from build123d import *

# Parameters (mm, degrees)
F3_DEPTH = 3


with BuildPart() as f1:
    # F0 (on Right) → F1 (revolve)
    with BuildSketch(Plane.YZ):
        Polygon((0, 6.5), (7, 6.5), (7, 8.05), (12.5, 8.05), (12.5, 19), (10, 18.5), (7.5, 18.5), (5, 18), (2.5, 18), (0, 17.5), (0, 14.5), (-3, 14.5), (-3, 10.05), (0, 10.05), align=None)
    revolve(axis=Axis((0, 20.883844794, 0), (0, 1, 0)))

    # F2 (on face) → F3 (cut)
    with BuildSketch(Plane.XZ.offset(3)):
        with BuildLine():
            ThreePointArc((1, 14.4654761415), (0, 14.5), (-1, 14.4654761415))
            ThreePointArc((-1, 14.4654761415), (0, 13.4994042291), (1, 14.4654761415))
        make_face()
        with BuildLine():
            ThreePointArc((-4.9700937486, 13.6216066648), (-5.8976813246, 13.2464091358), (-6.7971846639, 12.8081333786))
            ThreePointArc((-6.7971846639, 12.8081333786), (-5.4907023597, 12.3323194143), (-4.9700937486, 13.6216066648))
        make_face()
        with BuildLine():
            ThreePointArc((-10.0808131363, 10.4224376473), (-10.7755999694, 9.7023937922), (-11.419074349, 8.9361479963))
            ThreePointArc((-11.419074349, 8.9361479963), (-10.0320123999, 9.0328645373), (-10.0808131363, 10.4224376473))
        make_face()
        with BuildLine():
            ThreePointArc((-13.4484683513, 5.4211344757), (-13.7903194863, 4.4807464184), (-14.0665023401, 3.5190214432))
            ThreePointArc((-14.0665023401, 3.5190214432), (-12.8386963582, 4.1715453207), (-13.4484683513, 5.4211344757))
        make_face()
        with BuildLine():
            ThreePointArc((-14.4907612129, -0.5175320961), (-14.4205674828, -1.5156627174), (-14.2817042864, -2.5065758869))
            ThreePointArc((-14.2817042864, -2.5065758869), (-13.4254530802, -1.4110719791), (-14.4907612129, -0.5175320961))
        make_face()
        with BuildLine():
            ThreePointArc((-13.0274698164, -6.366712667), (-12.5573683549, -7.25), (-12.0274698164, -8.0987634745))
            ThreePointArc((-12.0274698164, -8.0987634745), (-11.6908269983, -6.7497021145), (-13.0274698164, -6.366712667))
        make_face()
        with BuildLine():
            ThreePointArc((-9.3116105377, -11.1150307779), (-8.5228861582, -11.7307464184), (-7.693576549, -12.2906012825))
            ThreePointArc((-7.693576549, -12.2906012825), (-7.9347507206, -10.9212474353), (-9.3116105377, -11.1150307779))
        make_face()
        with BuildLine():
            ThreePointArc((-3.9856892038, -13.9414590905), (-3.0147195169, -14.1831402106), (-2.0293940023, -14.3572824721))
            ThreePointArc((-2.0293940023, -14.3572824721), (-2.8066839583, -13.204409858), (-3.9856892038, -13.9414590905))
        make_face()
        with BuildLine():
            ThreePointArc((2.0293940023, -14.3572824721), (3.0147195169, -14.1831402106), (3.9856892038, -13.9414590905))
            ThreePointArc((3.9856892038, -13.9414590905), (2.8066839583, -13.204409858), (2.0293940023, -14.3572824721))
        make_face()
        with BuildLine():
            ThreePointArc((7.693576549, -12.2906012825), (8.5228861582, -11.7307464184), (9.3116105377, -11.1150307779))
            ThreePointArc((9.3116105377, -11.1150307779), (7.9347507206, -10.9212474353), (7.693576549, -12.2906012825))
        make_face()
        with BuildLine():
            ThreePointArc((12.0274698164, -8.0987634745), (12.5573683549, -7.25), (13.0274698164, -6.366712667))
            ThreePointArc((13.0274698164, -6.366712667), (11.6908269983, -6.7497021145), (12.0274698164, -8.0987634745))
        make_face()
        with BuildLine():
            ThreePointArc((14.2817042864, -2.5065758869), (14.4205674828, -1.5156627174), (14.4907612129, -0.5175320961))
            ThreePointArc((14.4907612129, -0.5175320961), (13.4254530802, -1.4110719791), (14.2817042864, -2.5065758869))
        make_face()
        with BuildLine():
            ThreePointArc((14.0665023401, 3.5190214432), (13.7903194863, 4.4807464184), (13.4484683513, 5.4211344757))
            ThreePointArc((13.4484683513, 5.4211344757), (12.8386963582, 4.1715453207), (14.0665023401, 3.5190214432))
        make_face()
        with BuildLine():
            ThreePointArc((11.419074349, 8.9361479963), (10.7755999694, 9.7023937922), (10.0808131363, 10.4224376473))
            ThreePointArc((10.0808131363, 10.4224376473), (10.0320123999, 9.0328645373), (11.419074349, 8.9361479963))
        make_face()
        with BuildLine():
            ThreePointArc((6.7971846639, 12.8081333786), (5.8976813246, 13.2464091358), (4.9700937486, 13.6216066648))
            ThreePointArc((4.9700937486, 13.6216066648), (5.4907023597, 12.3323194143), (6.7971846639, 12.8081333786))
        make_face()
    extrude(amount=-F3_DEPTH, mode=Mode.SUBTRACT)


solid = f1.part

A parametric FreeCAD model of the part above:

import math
import FreeCAD as App
import Part
import Sketcher

V = App.Vector
Q = App.Units.Quantity

doc = App.newDocument("Part")
body = doc.addObject("PartDesign::Body", "Body")

sketch1 = body.newObject("Sketcher::SketchObject", "Sketch")
sketch1.AttachmentSupport = (doc.getObject("YZ_Plane"), [""])
sketch1.MapMode = "FlatFace"
sketch1.addGeometry(Part.LineSegment(V(0, 6.5, 0), V(7, 6.5, 0)), False)
sketch1.addGeometry(Part.LineSegment(V(7, 6.5, 0), V(7, 8.1, 0)), False)
sketch1.addGeometry(Part.LineSegment(V(7, 8.1, 0), V(12.5, 8.1, 0)), False)
sketch1.addGeometry(Part.LineSegment(V(12.5, 8.1, 0), V(12.5, 19, 0)), False)
sketch1.addGeometry(Part.LineSegment(V(12.5, 19, 0), V(10, 18.5, 0)), False)
sketch1.addGeometry(Part.LineSegment(V(10, 18.5, 0), V(7.5, 18.5, 0)), False)
sketch1.addGeometry(Part.LineSegment(V(7.5, 18.5, 0), V(5, 18, 0)), False)
sketch1.addGeometry(Part.LineSegment(V(5, 18, 0), V(2.5, 18, 0)), False)
sketch1.addGeometry(Part.LineSegment(V(2.5, 18, 0), V(0, 17.5, 0)), False)
sketch1.addGeometry(Part.LineSegment(V(0, 17.5, 0), V(0, 14.5, 0)), False)
sketch1.addGeometry(Part.LineSegment(V(0, 14.5, 0), V(-3, 14.5, 0)), False)
sketch1.addGeometry(Part.LineSegment(V(-3, 14.5, 0), V(-3, 10.1, 0)), False)
sketch1.addGeometry(Part.LineSegment(V(-3, 10.1, 0), V(0, 10.1, 0)), False)
sketch1.addGeometry(Part.LineSegment(V(0, 10.1, 0), V(0, 6.5, 0)), False)
sketch1.addConstraint(Sketcher.Constraint("Coincident", 0, 2, 1, 1))
sketch1.addConstraint(Sketcher.Constraint("Coincident", 1, 2, 2, 1))
sketch1.addConstraint(Sketcher.Constraint("Coincident", 2, 2, 3, 1))
sketch1.addConstraint(Sketcher.Constraint("Coincident", 3, 2, 4, 1))
sketch1.addConstraint(Sketcher.Constraint("Coincident", 4, 2, 5, 1))
sketch1.addConstraint(Sketcher.Constraint("Coincident", 5, 2, 6, 1))
sketch1.addConstraint(Sketcher.Constraint("Coincident", 6, 2, 7, 1))
sketch1.addConstraint(Sketcher.Constraint("Coincident", 7, 2, 8, 1))
sketch1.addConstraint(Sketcher.Constraint("Coincident", 8, 2, 9, 1))
sketch1.addConstraint(Sketcher.Constraint("Coincident", 9, 2, 10, 1))
sketch1.addConstraint(Sketcher.Constraint("Coincident", 10, 2, 11, 1))
sketch1.addConstraint(Sketcher.Constraint("Coincident", 11, 2, 12, 1))
sketch1.addConstraint(Sketcher.Constraint("Coincident", 12, 2, 13, 1))
sketch1.addConstraint(Sketcher.Constraint("Coincident", 13, 2, 0, 1))
sketch1.addConstraint(Sketcher.Constraint("Horizontal", 0))
sketch1.addConstraint(Sketcher.Constraint("Vertical", 1))
sketch1.addConstraint(Sketcher.Constraint("Horizontal", 2))
sketch1.addConstraint(Sketcher.Constraint("Vertical", 3))
sketch1.addConstraint(Sketcher.Constraint("Horizontal", 5))
sketch1.addConstraint(Sketcher.Constraint("Horizontal", 7))
sketch1.addConstraint(Sketcher.Constraint("Vertical", 9))
sketch1.addConstraint(Sketcher.Constraint("Horizontal", 10))
sketch1.addConstraint(Sketcher.Constraint("Vertical", 11))
sketch1.addConstraint(Sketcher.Constraint("Horizontal", 12))
sketch1.addConstraint(Sketcher.Constraint("Vertical", 13))
sketch1.addConstraint(Sketcher.Constraint("PointOnObject", 8, 2, -2))
sketch1.addConstraint(Sketcher.Constraint("PointOnObject", 12, 2, -2))
sketch1.addConstraint(Sketcher.Constraint("Parallel", 4, 6))
sketch1.addConstraint(Sketcher.Constraint("Parallel", 6, 8))
sketch1.addConstraint(Sketcher.Constraint("Equal", 5, 7))
sketch1.addConstraint(Sketcher.Constraint("Equal", 12, 9))
sketch1.addConstraint(Sketcher.Constraint("Equal", 4, 6))
sketch1.addConstraint(Sketcher.Constraint("Equal", 6, 8))
sketch1.addConstraint(Sketcher.Constraint("DistanceX", 0, 1, 0, 2, Q("7 mm")))
sketch1.addConstraint(Sketcher.Constraint("DistanceX", 10, 2, 10, 1, Q("3 mm")))
sketch1.addConstraint(Sketcher.Constraint("DistanceX", 2, 1, 2, 2, Q("5.5 mm")))
sketch1.addConstraint(Sketcher.Constraint("DistanceX", 5, 2, 5, 1, Q("2.5 mm")))
sketch1.addConstraint(Sketcher.Constraint("DistanceY", -1, 1, 3, 2, Q("19 mm")))
sketch1.addConstraint(Sketcher.Constraint("DistanceY", -1, 1, 6, 2, Q("18 mm")))
sketch1.addConstraint(Sketcher.Constraint("DistanceY", 0, 2, 4, 2, Q("12 mm")))
sketch1.addConstraint(Sketcher.Constraint("DistanceY", 1, 2, 11, 2, Q("2 mm")))
sketch1.addConstraint(Sketcher.Constraint("DistanceY", 1, 1, 1, 2, Q("1.55 mm")))
revolution = body.newObject("PartDesign::Revolution", "Revolution")
revolution.Profile = sketch1
revolution.ReferenceAxis = (sketch1, ["H_Axis"])
revolution.Angle = 360

sketch2 = body.newObject("Sketcher::SketchObject", "Sketch001")
sketch2.AttachmentSupport = (doc.getObject("XZ_Plane"), [""])
sketch2.MapMode = "FlatFace"
sketch2.AttachmentOffset = App.Placement(V(0, 0, 3), App.Rotation())
sketch2.addGeometry(Part.ArcOfCircle(Part.Circle(V(0, 0, 0), V(0, 0, 1), 14.5), math.radians(86.045428), math.radians(93.954572)), False)
sketch2.addGeometry(Part.ArcOfCircle(Part.Circle(V(0, 14.5, 0), V(0, 0, 1), 1.000596), math.radians(-178.022714), math.radians(-1.977286)), False)
sketch2.addGeometry(Part.ArcOfCircle(Part.Circle(V(0, 0, 0), V(0, 0, 1), 14.5), math.radians(110.045428), math.radians(117.954572)), False)
sketch2.addGeometry(Part.ArcOfCircle(Part.Circle(V(-5.897681, 13.246409, 0), V(0, 0, 1), 1.000596), math.radians(-154.022714), math.radians(22.022714)), False)
sketch2.addGeometry(Part.ArcOfCircle(Part.Circle(V(0, 0, 0), V(0, 0, 1), 14.5), math.radians(134.045428), math.radians(141.954572)), False)
sketch2.addGeometry(Part.ArcOfCircle(Part.Circle(V(-10.7756, 9.702394, 0), V(0, 0, 1), 1.000596), math.radians(-130.022714), math.radians(46.022714)), False)
sketch2.addGeometry(Part.ArcOfCircle(Part.Circle(V(0, 0, 0), V(0, 0, 1), 14.5), math.radians(158.045428), math.radians(165.954572)), False)
sketch2.addGeometry(Part.ArcOfCircle(Part.Circle(V(-13.790319, 4.480746, 0), V(0, 0, 1), 1.000596), math.radians(-106.022714), math.radians(70.022714)), False)
sketch2.addGeometry(Part.ArcOfCircle(Part.Circle(V(0, 0, 0), V(0, 0, 1), 14.5), math.radians(-177.954572), math.radians(-170.045428)), False)
sketch2.addGeometry(Part.ArcOfCircle(Part.Circle(V(-14.420567, -1.515663, 0), V(0, 0, 1), 1.000596), math.radians(-82.022714), math.radians(94.022714)), False)
sketch2.addGeometry(Part.ArcOfCircle(Part.Circle(V(0, 0, 0), V(0, 0, 1), 14.5), math.radians(-153.954572), math.radians(-146.045428)), False)
sketch2.addGeometry(Part.ArcOfCircle(Part.Circle(V(-12.557368, -7.25, 0), V(0, 0, 1), 1.000596), math.radians(-58.022714), math.radians(118.022714)), False)
sketch2.addGeometry(Part.ArcOfCircle(Part.Circle(V(0, 0, 0), V(0, 0, 1), 14.5), math.radians(-129.954572), math.radians(-122.045428)), False)
sketch2.addGeometry(Part.ArcOfCircle(Part.Circle(V(-8.522886, -11.730746, 0), V(0, 0, 1), 1.000596), math.radians(-34.022714), math.radians(142.022714)), False)
sketch2.addGeometry(Part.ArcOfCircle(Part.Circle(V(0, 0, 0), V(0, 0, 1), 14.5), math.radians(-105.954572), math.radians(-98.045428)), False)
sketch2.addGeometry(Part.ArcOfCircle(Part.Circle(V(-3.01472, -14.18314, 0), V(0, 0, 1), 1.000596), math.radians(-10.022714), math.radians(166.022714)), False)
sketch2.addGeometry(Part.ArcOfCircle(Part.Circle(V(0, 0, 0), V(0, 0, 1), 14.5), math.radians(-81.954572), math.radians(-74.045428)), False)
sketch2.addGeometry(Part.ArcOfCircle(Part.Circle(V(3.01472, -14.18314, 0), V(0, 0, 1), 1.000596), math.radians(13.977286), math.radians(190.022714)), False)
sketch2.addGeometry(Part.ArcOfCircle(Part.Circle(V(0, 0, 0), V(0, 0, 1), 14.5), math.radians(-57.954572), math.radians(-50.045428)), False)
sketch2.addGeometry(Part.ArcOfCircle(Part.Circle(V(8.522886, -11.730746, 0), V(0, 0, 1), 1.000596), math.radians(37.977286), math.radians(214.022714)), False)
sketch2.addGeometry(Part.ArcOfCircle(Part.Circle(V(0, 0, 0), V(0, 0, 1), 14.5), math.radians(-33.954572), math.radians(-26.045428)), False)
sketch2.addGeometry(Part.ArcOfCircle(Part.Circle(V(12.557368, -7.25, 0), V(0, 0, 1), 1.000596), math.radians(61.977286), math.radians(238.022714)), False)
sketch2.addGeometry(Part.ArcOfCircle(Part.Circle(V(0, 0, 0), V(0, 0, 1), 14.5), math.radians(-9.954572), math.radians(-2.045428)), False)
sketch2.addGeometry(Part.ArcOfCircle(Part.Circle(V(14.420567, -1.515663, 0), V(0, 0, 1), 1.000596), math.radians(85.977286), math.radians(262.022714)), False)
sketch2.addGeometry(Part.ArcOfCircle(Part.Circle(V(0, 0, 0), V(0, 0, 1), 14.5), math.radians(14.045428), math.radians(21.954572)), False)
sketch2.addGeometry(Part.ArcOfCircle(Part.Circle(V(13.790319, 4.480746, 0), V(0, 0, 1), 1.000596), math.radians(109.977286), math.radians(286.022714)), False)
sketch2.addGeometry(Part.ArcOfCircle(Part.Circle(V(0, 0, 0), V(0, 0, 1), 14.5), math.radians(38.045428), math.radians(45.954572)), False)
sketch2.addGeometry(Part.ArcOfCircle(Part.Circle(V(10.7756, 9.702394, 0), V(0, 0, 1), 1.000596), math.radians(133.977286), math.radians(310.022714)), False)
sketch2.addGeometry(Part.ArcOfCircle(Part.Circle(V(0, 0, 0), V(0, 0, 1), 14.5), math.radians(62.045428), math.radians(69.954572)), False)
sketch2.addGeometry(Part.ArcOfCircle(Part.Circle(V(5.897681, 13.246409, 0), V(0, 0, 1), 1.000596), math.radians(157.977286), math.radians(334.022714)), False)
sketch2.addConstraint(Sketcher.Constraint("Coincident", 0, 1, 1, 2))
sketch2.addConstraint(Sketcher.Constraint("Coincident", 1, 1, 0, 2))
sketch2.addConstraint(Sketcher.Constraint("Coincident", 2, 1, 3, 2))
sketch2.addConstraint(Sketcher.Constraint("Coincident", 3, 1, 2, 2))
sketch2.addConstraint(Sketcher.Constraint("Coincident", 4, 1, 5, 2))
sketch2.addConstraint(Sketcher.Constraint("Coincident", 5, 1, 4, 2))
sketch2.addConstraint(Sketcher.Constraint("Coincident", 6, 1, 7, 2))
sketch2.addConstraint(Sketcher.Constraint("Coincident", 7, 1, 6, 2))
sketch2.addConstraint(Sketcher.Constraint("Coincident", 8, 1, 9, 2))
sketch2.addConstraint(Sketcher.Constraint("Coincident", 9, 1, 8, 2))
sketch2.addConstraint(Sketcher.Constraint("Coincident", 10, 1, 11, 2))
sketch2.addConstraint(Sketcher.Constraint("Coincident", 11, 1, 10, 2))
sketch2.addConstraint(Sketcher.Constraint("Coincident", 12, 1, 13, 2))
sketch2.addConstraint(Sketcher.Constraint("Coincident", 13, 1, 12, 2))
sketch2.addConstraint(Sketcher.Constraint("Coincident", 14, 1, 15, 2))
sketch2.addConstraint(Sketcher.Constraint("Coincident", 15, 1, 14, 2))
sketch2.addConstraint(Sketcher.Constraint("Coincident", 16, 1, 17, 2))
sketch2.addConstraint(Sketcher.Constraint("Coincident", 17, 1, 16, 2))
sketch2.addConstraint(Sketcher.Constraint("Coincident", 18, 1, 19, 2))
sketch2.addConstraint(Sketcher.Constraint("Coincident", 19, 1, 18, 2))
sketch2.addConstraint(Sketcher.Constraint("Coincident", 20, 1, 21, 2))
sketch2.addConstraint(Sketcher.Constraint("Coincident", 21, 1, 20, 2))
sketch2.addConstraint(Sketcher.Constraint("Coincident", 22, 1, 23, 2))
sketch2.addConstraint(Sketcher.Constraint("Coincident", 23, 1, 22, 2))
sketch2.addConstraint(Sketcher.Constraint("Coincident", 24, 1, 25, 2))
sketch2.addConstraint(Sketcher.Constraint("Coincident", 25, 1, 24, 2))
sketch2.addConstraint(Sketcher.Constraint("Coincident", 26, 1, 27, 2))
sketch2.addConstraint(Sketcher.Constraint("Coincident", 27, 1, 26, 2))
sketch2.addConstraint(Sketcher.Constraint("Coincident", 28, 1, 29, 2))
sketch2.addConstraint(Sketcher.Constraint("Coincident", 29, 1, 28, 2))
sketch2.addConstraint(Sketcher.Constraint("Coincident", 0, 3, -1, 1))
sketch2.addConstraint(Sketcher.Constraint("Coincident", 2, 3, -1, 1))
sketch2.addConstraint(Sketcher.Constraint("Coincident", 4, 3, -1, 1))
sketch2.addConstraint(Sketcher.Constraint("Coincident", 6, 3, -1, 1))
sketch2.addConstraint(Sketcher.Constraint("Coincident", 8, 3, -1, 1))
sketch2.addConstraint(Sketcher.Constraint("Coincident", 10, 3, -1, 1))
sketch2.addConstraint(Sketcher.Constraint("Coincident", 12, 3, -1, 1))
sketch2.addConstraint(Sketcher.Constraint("Coincident", 14, 3, -1, 1))
sketch2.addConstraint(Sketcher.Constraint("Coincident", 16, 3, -1, 1))
sketch2.addConstraint(Sketcher.Constraint("Coincident", 18, 3, -1, 1))
sketch2.addConstraint(Sketcher.Constraint("Coincident", 20, 3, -1, 1))
sketch2.addConstraint(Sketcher.Constraint("Coincident", 22, 3, -1, 1))
sketch2.addConstraint(Sketcher.Constraint("Coincident", 24, 3, -1, 1))
sketch2.addConstraint(Sketcher.Constraint("Coincident", 26, 3, -1, 1))
sketch2.addConstraint(Sketcher.Constraint("Coincident", 28, 3, -1, 1))
sketch2.addConstraint(Sketcher.Constraint("Equal", 0, 2))
sketch2.addConstraint(Sketcher.Constraint("Equal", 1, 3))
sketch2.addConstraint(Sketcher.Constraint("Equal", 2, 4))
sketch2.addConstraint(Sketcher.Constraint("Equal", 3, 5))
sketch2.addConstraint(Sketcher.Constraint("Equal", 4, 6))
sketch2.addConstraint(Sketcher.Constraint("Equal", 5, 7))
sketch2.addConstraint(Sketcher.Constraint("Equal", 6, 8))
sketch2.addConstraint(Sketcher.Constraint("Equal", 7, 9))
sketch2.addConstraint(Sketcher.Constraint("Equal", 8, 10))
sketch2.addConstraint(Sketcher.Constraint("Equal", 9, 11))
sketch2.addConstraint(Sketcher.Constraint("Equal", 10, 12))
sketch2.addConstraint(Sketcher.Constraint("Equal", 11, 13))
sketch2.addConstraint(Sketcher.Constraint("Equal", 12, 14))
sketch2.addConstraint(Sketcher.Constraint("Equal", 13, 15))
sketch2.addConstraint(Sketcher.Constraint("Equal", 14, 16))
sketch2.addConstraint(Sketcher.Constraint("Equal", 15, 17))
sketch2.addConstraint(Sketcher.Constraint("Equal", 16, 18))
sketch2.addConstraint(Sketcher.Constraint("Equal", 17, 19))
sketch2.addConstraint(Sketcher.Constraint("Equal", 18, 20))
sketch2.addConstraint(Sketcher.Constraint("Equal", 19, 21))
sketch2.addConstraint(Sketcher.Constraint("Equal", 20, 22))
sketch2.addConstraint(Sketcher.Constraint("Equal", 21, 23))
sketch2.addConstraint(Sketcher.Constraint("Equal", 22, 24))
sketch2.addConstraint(Sketcher.Constraint("Equal", 23, 25))
sketch2.addConstraint(Sketcher.Constraint("Equal", 24, 26))
sketch2.addConstraint(Sketcher.Constraint("Equal", 25, 27))
sketch2.addConstraint(Sketcher.Constraint("Equal", 26, 28))
sketch2.addConstraint(Sketcher.Constraint("Equal", 27, 29))
sketch2.addConstraint(Sketcher.Constraint("Symmetric", 15, 3, 17, 3, -2))
sketch2.addConstraint(Sketcher.Constraint("Symmetric", 13, 3, 19, 3, -2))
sketch2.addConstraint(Sketcher.Constraint("Symmetric", 11, 3, 21, 3, -2))
sketch2.addConstraint(Sketcher.Constraint("Symmetric", 9, 3, 23, 3, -2))
sketch2.addConstraint(Sketcher.Constraint("Symmetric", 7, 3, 25, 3, -2))
sketch2.addConstraint(Sketcher.Constraint("Symmetric", 5, 3, 27, 3, -2))
sketch2.addConstraint(Sketcher.Constraint("Symmetric", 3, 3, 29, 3, -2))
sketch2.addConstraint(Sketcher.Constraint("PointOnObject", 1, 3, -2))
sketch2.addConstraint(Sketcher.Constraint("Radius", 0, Q("14.5 mm")))
sketch2.addConstraint(Sketcher.Constraint("DistanceX", -1, 1, 0, 1, Q("1 mm")))
sketch2.addConstraint(Sketcher.Constraint("DistanceX", 10, 1, 11, 1, Q("1 mm")))
sketch2.addConstraint(Sketcher.Constraint("DistanceY", -1, 1, 1, 3, Q("14.5 mm")))
sketch2.addConstraint(Sketcher.Constraint("DistanceY", 11, 3, -1, 1, Q("7.25 mm")))
sketch2.addConstraint(Sketcher.Constraint("DistanceX", 5, 3, -1, 1, Q("10.7756 mm")))
sketch2.addConstraint(Sketcher.Constraint("DistanceY", 13, 1, -1, 1, Q("12.290601 mm")))
sketch2.addConstraint(Sketcher.Constraint("DistanceX", 9, 3, 11, 3, Q("1.863199 mm")))
sketch2.addConstraint(Sketcher.Constraint("DistanceY", 7, 3, 5, 1, Q("4.455402 mm")))
sketch2.addConstraint(Sketcher.Constraint("DistanceX", 9, 3, 6, 1, Q("0.972099 mm")))
sketch2.addConstraint(Sketcher.Constraint("DistanceX", 9, 1, 7, 1, Q("0.215202 mm")))
sketch2.addConstraint(Sketcher.Constraint("DistanceY", 11, 1, 9, 3, Q("6.583101 mm")))
sketch2.addConstraint(Sketcher.Constraint("DistanceX", 3, 3, -1, 1, Q("5.897681 mm")))
sketch2.addConstraint(Sketcher.Constraint("DistanceY", -1, 1, 3, 3, Q("13.246409 mm")))
sketch2.addConstraint(Sketcher.Constraint("DistanceX", 15, 3, -1, 1, Q("3.01472 mm")))
sketch2.addConstraint(Sketcher.Constraint("DistanceY", 15, 3, -1, 1, Q("14.18314 mm")))
sketch2.addConstraint(Sketcher.Constraint("DistanceX", -1, 1, 19, 1, Q("9.311611 mm")))
pocket1 = body.newObject("PartDesign::Pocket", "Pocket")
pocket1.Profile = sketch2
pocket1.Length = 3

doc.recompute()
